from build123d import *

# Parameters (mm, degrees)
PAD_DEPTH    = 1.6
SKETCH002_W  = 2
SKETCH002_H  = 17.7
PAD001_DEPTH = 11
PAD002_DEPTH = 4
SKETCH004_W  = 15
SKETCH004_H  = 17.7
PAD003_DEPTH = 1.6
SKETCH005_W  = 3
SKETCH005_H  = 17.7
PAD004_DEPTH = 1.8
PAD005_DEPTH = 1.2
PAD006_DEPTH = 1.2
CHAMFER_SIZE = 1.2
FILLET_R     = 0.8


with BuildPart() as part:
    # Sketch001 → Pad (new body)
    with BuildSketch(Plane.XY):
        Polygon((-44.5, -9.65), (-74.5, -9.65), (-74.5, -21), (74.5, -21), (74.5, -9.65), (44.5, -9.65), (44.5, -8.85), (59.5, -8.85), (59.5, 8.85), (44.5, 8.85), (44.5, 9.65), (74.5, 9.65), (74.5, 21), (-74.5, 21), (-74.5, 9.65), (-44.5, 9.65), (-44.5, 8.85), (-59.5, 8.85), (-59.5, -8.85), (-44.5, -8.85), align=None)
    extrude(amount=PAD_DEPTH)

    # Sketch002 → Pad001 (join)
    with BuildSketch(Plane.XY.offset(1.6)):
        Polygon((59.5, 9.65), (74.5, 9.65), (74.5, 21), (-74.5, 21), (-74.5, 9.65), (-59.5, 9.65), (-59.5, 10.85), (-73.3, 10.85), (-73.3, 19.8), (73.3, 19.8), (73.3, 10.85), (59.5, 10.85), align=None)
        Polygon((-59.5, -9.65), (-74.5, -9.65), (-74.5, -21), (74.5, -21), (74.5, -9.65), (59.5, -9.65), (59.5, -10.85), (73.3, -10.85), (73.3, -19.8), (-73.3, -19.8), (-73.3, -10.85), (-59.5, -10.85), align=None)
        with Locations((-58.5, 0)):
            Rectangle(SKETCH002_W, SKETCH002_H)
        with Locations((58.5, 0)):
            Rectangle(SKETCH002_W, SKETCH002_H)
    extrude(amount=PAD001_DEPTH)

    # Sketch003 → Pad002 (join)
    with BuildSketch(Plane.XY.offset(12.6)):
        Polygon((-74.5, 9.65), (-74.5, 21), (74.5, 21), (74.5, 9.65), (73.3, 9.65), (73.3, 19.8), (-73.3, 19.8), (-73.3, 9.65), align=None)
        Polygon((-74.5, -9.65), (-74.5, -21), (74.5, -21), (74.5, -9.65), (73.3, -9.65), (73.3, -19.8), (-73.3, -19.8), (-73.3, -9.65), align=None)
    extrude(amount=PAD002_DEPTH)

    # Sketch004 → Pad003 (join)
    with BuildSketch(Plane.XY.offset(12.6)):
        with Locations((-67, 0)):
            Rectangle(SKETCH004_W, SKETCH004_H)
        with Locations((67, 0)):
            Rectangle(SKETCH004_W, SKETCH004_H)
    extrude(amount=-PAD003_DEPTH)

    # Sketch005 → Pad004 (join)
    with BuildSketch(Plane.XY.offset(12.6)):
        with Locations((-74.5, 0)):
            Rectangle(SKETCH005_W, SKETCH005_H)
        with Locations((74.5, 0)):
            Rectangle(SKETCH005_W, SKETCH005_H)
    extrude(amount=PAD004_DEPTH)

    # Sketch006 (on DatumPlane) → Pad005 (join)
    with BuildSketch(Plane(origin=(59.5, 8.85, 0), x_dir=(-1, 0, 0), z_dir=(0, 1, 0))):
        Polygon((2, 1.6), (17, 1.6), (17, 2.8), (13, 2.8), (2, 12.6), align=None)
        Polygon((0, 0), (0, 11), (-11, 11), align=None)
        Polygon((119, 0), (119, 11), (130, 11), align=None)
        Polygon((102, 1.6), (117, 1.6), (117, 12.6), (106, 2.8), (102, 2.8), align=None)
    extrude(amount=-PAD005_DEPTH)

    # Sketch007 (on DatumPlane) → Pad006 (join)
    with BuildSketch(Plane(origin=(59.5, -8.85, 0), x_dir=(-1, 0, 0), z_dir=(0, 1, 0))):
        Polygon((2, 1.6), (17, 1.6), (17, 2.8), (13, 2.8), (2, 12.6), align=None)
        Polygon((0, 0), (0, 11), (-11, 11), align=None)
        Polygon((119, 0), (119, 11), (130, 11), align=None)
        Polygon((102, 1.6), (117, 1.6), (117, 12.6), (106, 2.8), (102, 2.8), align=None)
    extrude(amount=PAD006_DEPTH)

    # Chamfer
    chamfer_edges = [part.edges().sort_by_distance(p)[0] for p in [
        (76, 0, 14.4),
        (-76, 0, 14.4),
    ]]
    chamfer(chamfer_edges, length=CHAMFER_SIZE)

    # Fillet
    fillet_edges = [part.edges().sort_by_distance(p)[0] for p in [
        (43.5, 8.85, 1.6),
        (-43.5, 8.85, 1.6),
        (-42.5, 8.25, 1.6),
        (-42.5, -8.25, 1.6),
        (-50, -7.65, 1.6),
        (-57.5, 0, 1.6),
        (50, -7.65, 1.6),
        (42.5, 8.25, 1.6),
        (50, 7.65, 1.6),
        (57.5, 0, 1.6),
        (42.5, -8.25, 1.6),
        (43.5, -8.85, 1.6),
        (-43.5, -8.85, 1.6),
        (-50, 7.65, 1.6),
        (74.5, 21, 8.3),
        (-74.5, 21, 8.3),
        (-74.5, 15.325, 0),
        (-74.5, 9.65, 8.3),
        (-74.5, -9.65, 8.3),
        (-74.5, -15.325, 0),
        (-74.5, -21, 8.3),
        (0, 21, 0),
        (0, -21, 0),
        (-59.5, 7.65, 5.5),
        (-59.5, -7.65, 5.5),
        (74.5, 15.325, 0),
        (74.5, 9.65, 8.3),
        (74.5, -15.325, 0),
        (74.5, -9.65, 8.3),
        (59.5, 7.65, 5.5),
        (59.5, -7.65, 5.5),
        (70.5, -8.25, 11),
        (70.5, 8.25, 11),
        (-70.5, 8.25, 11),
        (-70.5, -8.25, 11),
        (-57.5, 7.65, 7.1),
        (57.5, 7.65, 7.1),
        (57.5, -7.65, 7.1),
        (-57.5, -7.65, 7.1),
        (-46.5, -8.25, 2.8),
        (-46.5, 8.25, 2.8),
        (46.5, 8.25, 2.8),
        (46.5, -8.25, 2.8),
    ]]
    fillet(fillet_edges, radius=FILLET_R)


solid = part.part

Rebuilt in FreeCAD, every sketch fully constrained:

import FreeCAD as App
import Part
import Sketcher
from FreeCAD import Vector


def edges_at(feature, points):
    """Names of the edges that pass closest to the given points."""
    edges = feature.Shape.Edges
    near = lambda p: min(range(len(edges)), key=lambda i: edges[i].distToShape(Part.Vertex(*p))[0])
    return sorted({f"Edge{near(p) + 1}" for p in points})


def add_polygon(sketch, points):
    """Adds a closed chain of lines whose ends are joined by coincident constraints."""
    first, n = sketch.GeometryCount, len(points)
    for a, b in zip(points, points[1:] + points[:1]):
        sketch.addGeometry(Part.LineSegment(App.Vector(*a, 0), App.Vector(*b, 0)), False)
    for i in range(n):
        sketch.addConstraint(Sketcher.Constraint("Coincident", first + i, 2, first + (i + 1) % n, 1))

doc = App.newDocument("Part")
body = doc.addObject("PartDesign::Body", "Body")

# Sketch on XY plane
sketch1 = body.newObject("Sketcher::SketchObject", "Sketch")
sketch1.AttachmentSupport = (doc.getObject("XY_Plane"), [""])
sketch1.MapMode = "FlatFace"
add_polygon(sketch1, [(-44.5, -9.7), (-74.5, -9.7), (-74.5, -21), (74.5, -21), (74.5, -9.7), (44.5, -9.7), (44.5, -8.8), (59.5, -8.8), (59.5, 8.8), (44.5, 8.8), (44.5, 9.7), (74.5, 9.7), (74.5, 21), (-74.5, 21), (-74.5, 9.7), (-44.5, 9.7), (-44.5, 8.8), (-59.5, 8.8), (-59.5, -8.8), (-44.5, -8.8)])  # lines 0-19
sketch1.addConstraint([
    Sketcher.Constraint("Horizontal", 0),
    Sketcher.Constraint("Vertical", 1),
    Sketcher.Constraint("Horizontal", 2),
    Sketcher.Constraint("Vertical", 3),
    Sketcher.Constraint("Horizontal", 4),
    Sketcher.Constraint("Vertical", 5),
    Sketcher.Constraint("Horizontal", 6),
    Sketcher.Constraint("Vertical", 7),
    Sketcher.Constraint("Horizontal", 8),
    Sketcher.Constraint("Vertical", 9),
    Sketcher.Constraint("Horizontal", 10),
    Sketcher.Constraint("Vertical", 11),
    Sketcher.Constraint("Horizontal", 12),
    Sketcher.Constraint("Vertical", 13),
    Sketcher.Constraint("Horizontal", 14),
    Sketcher.Constraint("Vertical", 15),
    Sketcher.Constraint("Horizontal", 16),
    Sketcher.Constraint("Vertical", 17),
    Sketcher.Constraint("Horizontal", 18),
    Sketcher.Constraint("Vertical", 19),
    Sketcher.Constraint("Symmetric", 0, 2, 10, 2, -1, 1),
    Sketcher.Constraint("Symmetric", 2, 2, 12, 2, -1, 1),
    Sketcher.Constraint("Symmetric", 4, 2, 14, 2, -1, 1),
    Sketcher.Constraint("Symmetric", 6, 2, 16, 2, -1, 1),
    Sketcher.Constraint("Symmetric", 8, 2, 18, 2, -1, 1),
    Sketcher.Constraint("Symmetric", 0, 2, 3, 2, -2),
    Sketcher.Constraint("Symmetric", 8, 2, 15, 2, -2),
    Sketcher.Constraint("DistanceX", 0, 2, 0, 1, 30.0),
    Sketcher.Constraint("DistanceX", 2, 1, 2, 2, 149.0),
    Sketcher.Constraint("DistanceX", 6, 1, 6, 2, 15.0),
    Sketcher.Constraint("DistanceY", 5, 1, 5, 2, 0.8),
    Sketcher.Constraint("DistanceY", 7, 1, 7, 2, 17.7),
    Sketcher.Constraint("DistanceY", 1, 2, -1, 1, 21.0),
])
pad1 = body.newObject("PartDesign::Pad", "Pad")
pad1.Profile = sketch1
pad1.Length = 1.6

# Sketch on XY plane
sketch2 = body.newObject("Sketcher::SketchObject", "Sketch001")
sketch2.AttachmentSupport = (doc.getObject("XY_Plane"), [""])
sketch2.MapMode = "FlatFace"
sketch2.AttachmentOffset = App.Placement(Vector(0, 0, 1.6), App.Rotation())
add_polygon(sketch2, [(59.5, 9.7), (74.5, 9.7), (74.5, 21), (-74.5, 21), (-74.5, 9.7), (-59.5, 9.7), (-59.5, 10.8), (-73.3, 10.8), (-73.3, 19.8), (73.3, 19.8), (73.3, 10.8), (59.5, 10.8)])  # lines 0-11
add_polygon(sketch2, [(-59.5, -9.7), (-74.5, -9.7), (-74.5, -21), (74.5, -21), (74.5, -9.7), (59.5, -9.7), (59.5, -10.8), (73.3, -10.8), (73.3, -19.8), (-73.3, -19.8), (-73.3, -10.8), (-59.5, -10.8)])  # lines 12-23
add_polygon(sketch2, [(-59.5, 8.8), (-59.5, -8.8), (-57.5, -8.8), (-57.5, 8.8)])  # lines 24-27
add_polygon(sketch2, [(57.5, 8.8), (57.5, -8.8), (59.5, -8.8), (59.5, 8.8)])  # lines 28-31
sketch2.addConstraint([
    Sketcher.Constraint("Horizontal", 0),
    Sketcher.Constraint("Vertical", 1),
    Sketcher.Constraint("Horizontal", 2),
    Sketcher.Constraint("Vertical", 3),
    Sketcher.Constraint("Horizontal", 4),
    Sketcher.Constraint("Vertical", 5),
    Sketcher.Constraint("Horizontal", 6),
    Sketcher.Constraint("Vertical", 7),
    Sketcher.Constraint("Horizontal", 8),
    Sketcher.Constraint("Vertical", 9),
    Sketcher.Constraint("Horizontal", 10),
    Sketcher.Constraint("Vertical", 11),
    Sketcher.Constraint("Horizontal", 12),
    Sketcher.Constraint("Vertical", 13),
    Sketcher.Constraint("Horizontal", 14),
    Sketcher.Constraint("Vertical", 15),
    Sketcher.Constraint("Horizontal", 16),
    Sketcher.Constraint("Vertical", 17),
    Sketcher.Constraint("Horizontal", 18),
    Sketcher.Constraint("Vertical", 19),
    Sketcher.Constraint("Horizontal", 20),
    Sketcher.Constraint("Vertical", 21),
    Sketcher.Constraint("Horizontal", 22),
    Sketcher.Constraint("Vertical", 23),
    Sketcher.Constraint("Vertical", 24),
    Sketcher.Constraint("Horizontal", 25),
    Sketcher.Constraint("Vertical", 26),
    Sketcher.Constraint("Horizontal", 27),
    Sketcher.Constraint("Vertical", 28),
    Sketcher.Constraint("Horizontal", 29),
    Sketcher.Constraint("Vertical", 30),
    Sketcher.Constraint("Horizontal", 31),
    Sketcher.Constraint("Symmetric", 0, 2, 12, 2, -1, 1),
    Sketcher.Constraint("Symmetric", 2, 2, 14, 2, -1, 1),
    Sketcher.Constraint("Symmetric", 4, 2, 16, 2, -1, 1),
    Sketcher.Constraint("Symmetric", 6, 2, 18, 2, -1, 1),
    Sketcher.Constraint("Symmetric", 8, 2, 20, 2, -1, 1),
    Sketcher.Constraint("Symmetric", 10, 2, 22, 2, -1, 1),
    Sketcher.Constraint("Symmetric", 26, 2, 28, 2, -1, 1),
    Sketcher.Constraint("Symmetric", 24, 2, 30, 2, -1, 1),
    Sketcher.Constraint("Symmetric", 0, 2, 3, 2, -2),
    Sketcher.Constraint("Symmetric", 6, 2, 9, 2, -2),
    Sketcher.Constraint("Horizontal", 25, 2, 28, 2),
    Sketcher.Constraint("Vertical", 11, 2, 16, 2),
    Sketcher.Constraint("Vertical", 23, 2, 24, 2),
    Sketcher.Constraint("DistanceX", 0, 1, 0, 2, 15.0),
    Sketcher.Constraint("DistanceX", 2, 2, 2, 1, 149.0),
    Sketcher.Constraint("DistanceX", 25, 1, 25, 2, 2.0),
    Sketcher.Constraint("DistanceX", 6, 2, 6, 1, 13.8),
    Sketcher.Constraint("DistanceY", 5, 1, 5, 2, 1.2),
    Sketcher.Constraint("DistanceY", 24, 2, 24, 1, 17.7),
    Sketcher.Constraint("DistanceY", -1, 1, 1, 2, 21.0),
    Sketcher.Constraint("DistanceY", 22, 2, 24, 2, 2.0),
    Sketcher.Constraint("DistanceY", 7, 1, 7, 2, 8.95),
])
pad2 = body.newObject("PartDesign::Pad", "Pad001")
pad2.Profile = sketch2
pad2.Length = 11

# Sketch on XY plane
sketch3 = body.newObject("Sketcher::SketchObject", "Sketch002")
sketch3.AttachmentSupport = (doc.getObject("XY_Plane"), [""])
sketch3.MapMode = "FlatFace"
sketch3.AttachmentOffset = App.Placement(Vector(0, 0, 12.6), App.Rotation())
add_polygon(sketch3, [(-74.5, 21), (-74.5, 9.7), (-73.3, 9.7), (-73.3, 19.8), (73.3, 19.8), (73.3, 9.7), (74.5, 9.7), (74.5, 21)])  # lines 0-7
add_polygon(sketch3, [(-74.5, -9.7), (-74.5, -21), (74.5, -21), (74.5, -9.7), (73.3, -9.7), (73.3, -19.8), (-73.3, -19.8), (-73.3, -9.7)])  # lines 8-15
sketch3.addConstraint([
    Sketcher.Constraint("Vertical", 0),
    Sketcher.Constraint("Horizontal", 1),
    Sketcher.Constraint("Vertical", 2),
    Sketcher.Constraint("Horizontal", 3),
    Sketcher.Constraint("Vertical", 4),
    Sketcher.Constraint("Horizontal", 5),
    Sketcher.Constraint("Vertical", 6),
    Sketcher.Constraint("Horizontal", 7),
    Sketcher.Constraint("Vertical", 8),
    Sketcher.Constraint("Horizontal", 9),
    Sketcher.Constraint("Vertical", 10),
    Sketcher.Constraint("Horizontal", 11),
    Sketcher.Constraint("Vertical", 12),
    Sketcher.Constraint("Horizontal", 13),
    Sketcher.Constraint("Vertical", 14),
    Sketcher.Constraint("Horizontal", 15),
    Sketcher.Constraint("Symmetric", 6, 2, 8, 2, -1, 1),
    Sketcher.Constraint("Symmetric", 0, 2, 10, 2, -1, 1),
    Sketcher.Constraint("Symmetric", 2, 2, 12, 2, -1, 1),
    Sketcher.Constraint("Symmetric", 4, 2, 14, 2, -1, 1),
    Sketcher.Constraint("Symmetric", 1, 2, 4, 2, -2),
    Sketcher.Constraint("Vertical", 7, 2, 8, 2),
    Sketcher.Constraint("DistanceX", 7, 2, 7, 1, 149.0),
    Sketcher.Constraint("DistanceX", 1, 1, 1, 2, 1.2),
    Sketcher.Constraint("DistanceY", -1, 1, 6, 2, 21.0),
    Sketcher.Constraint("DistanceY", 0, 2, 0, 1, 11.35),
    Sketcher.Constraint("DistanceY", 2, 1, 2, 2, 10.15),
])
pad3 = body.newObject("PartDesign::Pad", "Pad002")
pad3.Profile = sketch3
pad3.Length = 4

# Sketch on XY plane
sketch4 = body.newObject("Sketcher::SketchObject", "Sketch003")
sketch4.AttachmentSupport = (doc.getObject("XY_Plane"), [""])
sketch4.MapMode = "FlatFace"
sketch4.AttachmentOffset = App.Placement(Vector(0, 0, 12.6), App.Rotation())
add_polygon(sketch4, [(-74, 9), (-74, -9), (-60, -9), (-60, 9)])  # lines 0-3
add_polygon(sketch4, [(60, 9), (60, -9), (74, -9), (74, 9)])  # lines 4-7
sketch4.addConstraint([
    Sketcher.Constraint("Vertical", 0),
    Sketcher.Constraint("Horizontal", 1),
    Sketcher.Constraint("Vertical", 2),
    Sketcher.Constraint("Horizontal", 3),
    Sketcher.Constraint("Vertical", 4),
    Sketcher.Constraint("Horizontal", 5),
    Sketcher.Constraint("Vertical", 6),
    Sketcher.Constraint("Horizontal", 7),
    Sketcher.Constraint("Symmetric", 2, 2, 4, 2, -1, 1),
    Sketcher.Constraint("Symmetric", 0, 2, 6, 2, -1, 1),
    Sketcher.Constraint("Horizontal", 1, 2, 4, 2),
    Sketcher.Constraint("DistanceX", 1, 1, 1, 2, 15.0),
    Sketcher.Constraint("DistanceY", 0, 2, 0, 1, 17.7),
    Sketcher.Constraint("DistanceX", 1, 2, 4, 2, 119.0),
])
pad4 = body.newObject("PartDesign::Pad", "Pad003")
pad4.Profile = sketch4
pad4.Length = 1.6
pad4.Reversed = True

# Sketch on XY plane
sketch5 = body.newObject("Sketcher::SketchObject", "Sketch004")
sketch5.AttachmentSupport = (doc.getObject("XY_Plane"), [""])
sketch5.MapMode = "FlatFace"
sketch5.AttachmentOffset = App.Placement(Vector(0, 0, 12.6), App.Rotation())
add_polygon(sketch5, [(-76, 8.8), (-76, -8.8), (-73, -8.8), (-73, 8.8)])  # lines 0-3
add_polygon(sketch5, [(73, 8.8), (73, -8.8), (76, -8.8), (76, 8.8)])  # lines 4-7
sketch5.addConstraint([
    Sketcher.Constraint("Vertical", 0),
    Sketcher.Constraint("Horizontal", 1),
    Sketcher.Constraint("Vertical", 2),
    Sketcher.Constraint("Horizontal", 3),
    Sketcher.Constraint("Vertical", 4),
    Sketcher.Constraint("Horizontal", 5),
    Sketcher.Constraint("Vertical", 6),
    Sketcher.Constraint("Horizontal", 7),
    Sketcher.Constraint("Symmetric", 2, 2, 4, 2, -1, 1),
    Sketcher.Constraint("Symmetric", 0, 2, 6, 2, -1, 1),
    Sketcher.Constraint("Horizontal", 1, 2, 4, 2),
    Sketcher.Constraint("DistanceX", 1, 1, 1, 2, 3.0),
    Sketcher.Constraint("DistanceY", 0, 2, 0, 1, 17.7),
    Sketcher.Constraint("DistanceX", 0, 2, -1, 1, 76.0),
])
pad5 = body.newObject("PartDesign::Pad", "Pad004")
pad5.Profile = sketch5
pad5.Length = 1.8

# Sketch on XZ plane
sketch6 = body.newObject("Sketcher::SketchObject", "Sketch005")
sketch6.AttachmentSupport = (doc.getObject("XZ_Plane"), [""])
sketch6.MapMode = "FlatFace"
sketch6.AttachmentOffset = App.Placement(Vector(0, 0, -8.85), App.Rotation())
add_polygon(sketch6, [(57.5, 1.6), (42.5, 1.6), (42.5, 2.8), (46.5, 2.8), (57.5, 12.6)])  # lines 0-4
add_polygon(sketch6, [(59.5, 0), (59.5, 11), (70.5, 11)])  # lines 5-7
add_polygon(sketch6, [(-59.5, 11), (-59.5, 0), (-70.5, 11)])  # lines 8-10
add_polygon(sketch6, [(-42.5, 1.6), (-57.5, 1.6), (-57.5, 12.6), (-46.5, 2.8), (-42.5, 2.8)])  # lines 11-15
sketch6.addConstraint([
    Sketcher.Constraint("Horizontal", 0),
    Sketcher.Constraint("Vertical", 1),
    Sketcher.Constraint("Horizontal", 2),
    Sketcher.Constraint("Vertical", 4),
    Sketcher.Constraint("Vertical", 5),
    Sketcher.Constraint("Horizontal", 6),
    Sketcher.Constraint("Vertical", 8),
    Sketcher.Constraint("Horizontal", 10),
    Sketcher.Constraint("Horizontal", 11),
    Sketcher.Constraint("Vertical", 12),
    Sketcher.Constraint("Horizontal", 14),
    Sketcher.Constraint("Vertical", 15),
    Sketcher.Constraint("Symmetric", 7, 2, 8, 2, -1, 1),
    Sketcher.Constraint("Symmetric", 6, 2, 9, 2, -2),
    Sketcher.Constraint("Symmetric", 4, 2, 11, 2, -2),
    Sketcher.Constraint("Symmetric", 2, 2, 13, 2, -2),
    Sketcher.Constraint("PointOnObject", 7, 2, -1),
    Sketcher.Constraint("Perpendicular", 7, 9),
    Sketcher.Constraint("Horizontal", 3, 2, 12, 2),
    Sketcher.Constraint("Equal", 0, 11),
    Sketcher.Constraint("Equal", 10, 4),
    Sketcher.Constraint("DistanceX", 0, 2, 0, 1, 15.0),
    Sketcher.Constraint("DistanceX", 2, 1, 2, 2, 4.0),
    Sketcher.Constraint("DistanceX", 6, 1, 6, 2, 11.0),
    Sketcher.Constraint("DistanceY", 1, 1, 1, 2, 1.2),
    Sketcher.Constraint("DistanceX", 3, 2, 5, 2, 2.0),
    Sketcher.Constraint("DistanceX", 8, 2, 0, 2, 102.0),
    Sketcher.Constraint("DistanceY", -1, 1, 0, 2, 1.6),
])
pad6 = body.newObject("PartDesign::Pad", "Pad005")
pad6.Profile = sketch6
pad6.Length = 1.2

# Sketch on XZ plane
sketch7 = body.newObject("Sketcher::SketchObject", "Sketch006")
sketch7.AttachmentSupport = (doc.getObject("XZ_Plane"), [""])
sketch7.MapMode = "FlatFace"
sketch7.AttachmentOffset = App.Placement(Vector(0, 0, 8.85), App.Rotation())
add_polygon(sketch7, [(57.5, 1.6), (42.5, 1.6), (42.5, 2.8), (46.5, 2.8), (57.5, 12.6)])  # lines 0-4
add_polygon(sketch7, [(59.5, 0), (59.5, 11), (70.5, 11)])  # lines 5-7
add_polygon(sketch7, [(-59.5, 11), (-59.5, 0), (-70.5, 11)])  # lines 8-10
add_polygon(sketch7, [(-42.5, 1.6), (-57.5, 1.6), (-57.5, 12.6), (-46.5, 2.8), (-42.5, 2.8)])  # lines 11-15
sketch7.addConstraint([
    Sketcher.Constraint("Horizontal", 0),
    Sketcher.Constraint("Vertical", 1),
    Sketcher.Constraint("Horizontal", 2),
    Sketcher.Constraint("Vertical", 4),
    Sketcher.Constraint("Vertical", 5),
    Sketcher.Constraint("Horizontal", 6),
    Sketcher.Constraint("Vertical", 8),
    Sketcher.Constraint("Horizontal", 10),
    Sketcher.Constraint("Horizontal", 11),
    Sketcher.Constraint("Vertical", 12),
    Sketcher.Constraint("Horizontal", 14),
    Sketcher.Constraint("Vertical", 15),
    Sketcher.Constraint("Symmetric", 7, 2, 8, 2, -1, 1),
    Sketcher.Constraint("Symmetric", 6, 2, 9, 2, -2),
    Sketcher.Constraint("Symmetric", 4, 2, 11, 2, -2),
    Sketcher.Constraint("Symmetric", 2, 2, 13, 2, -2),
    Sketcher.Constraint("PointOnObject", 7, 2, -1),
    Sketcher.Constraint("Perpendicular", 7, 9),
    Sketcher.Constraint("Horizontal", 3, 2, 12, 2),
    Sketcher.Constraint("Equal", 0, 11),
    Sketcher.Constraint("Equal", 10, 4),
    Sketcher.Constraint("DistanceX", 0, 2, 0, 1, 15.0),
    Sketcher.Constraint("DistanceX", 2, 1, 2, 2, 4.0),
    Sketcher.Constraint("DistanceX", 6, 1, 6, 2, 11.0),
    Sketcher.Constraint("DistanceY", 1, 1, 1, 2, 1.2),
    Sketcher.Constraint("DistanceX", 3, 2, 5, 2, 2.0),
    Sketcher.Constraint("DistanceX", 8, 2, 0, 2, 102.0),
    Sketcher.Constraint("DistanceY", -1, 1, 0, 2, 1.6),
])
pad7 = body.newObject("PartDesign::Pad", "Pad006")
pad7.Profile = sketch7
pad7.Length = 1.2
pad7.Reversed = True
doc.recompute()

chamfer = body.newObject("PartDesign::Chamfer", "Chamfer")
chamfer.Base = (pad7, edges_at(pad7, [(76, 0, 14.4), (-76, 0, 14.4)]))
chamfer.Size = 1.2
doc.recompute()

fillet = body.newObject("PartDesign::Fillet", "Fillet")
fillet.Base = (chamfer, edges_at(chamfer, [
    (43.5, 8.85, 1.6),
    (-43.5, 8.85, 1.6),
    (-42.5, 8.25, 1.6),
    (-42.5, -8.25, 1.6),
    (-50, -7.65, 1.6),
    (-57.5, 0, 1.6),
    (50, -7.65, 1.6),
    (42.5, 8.25, 1.6),
    (50, 7.65, 1.6),
    (57.5, 0, 1.6),
    (42.5, -8.25, 1.6),
    (43.5, -8.85, 1.6),
    (-43.5, -8.85, 1.6),
    (-50, 7.65, 1.6),
    (74.5, 21, 8.3),
    (-74.5, 21, 8.3),
    (-74.5, 15.325, 0),
    (-74.5, 9.65, 8.3),
    (-74.5, -9.65, 8.3),
    (-74.5, -15.325, 0),
    (-74.5, -21, 8.3),
    (0, 21, 0),
    (0, -21, 0),
    (-59.5, 7.65, 5.5),
    (-59.5, -7.65, 5.5),
    (74.5, 15.325, 0),
    (74.5, 9.65, 8.3),
    (74.5, -15.325, 0),
    (74.5, -9.65, 8.3),
    (59.5, 7.65, 5.5),
    (59.5, -7.65, 5.5),
    (70.5, -8.25, 11),
    (70.5, 8.25, 11),
    (-70.5, 8.25, 11),
    (-70.5, -8.25, 11),
    (-57.5, 7.65, 7.1),
    (57.5, 7.65, 7.1),
    (57.5, -7.65, 7.1),
    (-57.5, -7.65, 7.1),
    (-46.5, -8.25, 2.8),
    (-46.5, 8.25, 2.8),
    (46.5, 8.25, 2.8),
    (46.5, -8.25, 2.8),
]))
fillet.Radius = 0.8

doc.recompute()
